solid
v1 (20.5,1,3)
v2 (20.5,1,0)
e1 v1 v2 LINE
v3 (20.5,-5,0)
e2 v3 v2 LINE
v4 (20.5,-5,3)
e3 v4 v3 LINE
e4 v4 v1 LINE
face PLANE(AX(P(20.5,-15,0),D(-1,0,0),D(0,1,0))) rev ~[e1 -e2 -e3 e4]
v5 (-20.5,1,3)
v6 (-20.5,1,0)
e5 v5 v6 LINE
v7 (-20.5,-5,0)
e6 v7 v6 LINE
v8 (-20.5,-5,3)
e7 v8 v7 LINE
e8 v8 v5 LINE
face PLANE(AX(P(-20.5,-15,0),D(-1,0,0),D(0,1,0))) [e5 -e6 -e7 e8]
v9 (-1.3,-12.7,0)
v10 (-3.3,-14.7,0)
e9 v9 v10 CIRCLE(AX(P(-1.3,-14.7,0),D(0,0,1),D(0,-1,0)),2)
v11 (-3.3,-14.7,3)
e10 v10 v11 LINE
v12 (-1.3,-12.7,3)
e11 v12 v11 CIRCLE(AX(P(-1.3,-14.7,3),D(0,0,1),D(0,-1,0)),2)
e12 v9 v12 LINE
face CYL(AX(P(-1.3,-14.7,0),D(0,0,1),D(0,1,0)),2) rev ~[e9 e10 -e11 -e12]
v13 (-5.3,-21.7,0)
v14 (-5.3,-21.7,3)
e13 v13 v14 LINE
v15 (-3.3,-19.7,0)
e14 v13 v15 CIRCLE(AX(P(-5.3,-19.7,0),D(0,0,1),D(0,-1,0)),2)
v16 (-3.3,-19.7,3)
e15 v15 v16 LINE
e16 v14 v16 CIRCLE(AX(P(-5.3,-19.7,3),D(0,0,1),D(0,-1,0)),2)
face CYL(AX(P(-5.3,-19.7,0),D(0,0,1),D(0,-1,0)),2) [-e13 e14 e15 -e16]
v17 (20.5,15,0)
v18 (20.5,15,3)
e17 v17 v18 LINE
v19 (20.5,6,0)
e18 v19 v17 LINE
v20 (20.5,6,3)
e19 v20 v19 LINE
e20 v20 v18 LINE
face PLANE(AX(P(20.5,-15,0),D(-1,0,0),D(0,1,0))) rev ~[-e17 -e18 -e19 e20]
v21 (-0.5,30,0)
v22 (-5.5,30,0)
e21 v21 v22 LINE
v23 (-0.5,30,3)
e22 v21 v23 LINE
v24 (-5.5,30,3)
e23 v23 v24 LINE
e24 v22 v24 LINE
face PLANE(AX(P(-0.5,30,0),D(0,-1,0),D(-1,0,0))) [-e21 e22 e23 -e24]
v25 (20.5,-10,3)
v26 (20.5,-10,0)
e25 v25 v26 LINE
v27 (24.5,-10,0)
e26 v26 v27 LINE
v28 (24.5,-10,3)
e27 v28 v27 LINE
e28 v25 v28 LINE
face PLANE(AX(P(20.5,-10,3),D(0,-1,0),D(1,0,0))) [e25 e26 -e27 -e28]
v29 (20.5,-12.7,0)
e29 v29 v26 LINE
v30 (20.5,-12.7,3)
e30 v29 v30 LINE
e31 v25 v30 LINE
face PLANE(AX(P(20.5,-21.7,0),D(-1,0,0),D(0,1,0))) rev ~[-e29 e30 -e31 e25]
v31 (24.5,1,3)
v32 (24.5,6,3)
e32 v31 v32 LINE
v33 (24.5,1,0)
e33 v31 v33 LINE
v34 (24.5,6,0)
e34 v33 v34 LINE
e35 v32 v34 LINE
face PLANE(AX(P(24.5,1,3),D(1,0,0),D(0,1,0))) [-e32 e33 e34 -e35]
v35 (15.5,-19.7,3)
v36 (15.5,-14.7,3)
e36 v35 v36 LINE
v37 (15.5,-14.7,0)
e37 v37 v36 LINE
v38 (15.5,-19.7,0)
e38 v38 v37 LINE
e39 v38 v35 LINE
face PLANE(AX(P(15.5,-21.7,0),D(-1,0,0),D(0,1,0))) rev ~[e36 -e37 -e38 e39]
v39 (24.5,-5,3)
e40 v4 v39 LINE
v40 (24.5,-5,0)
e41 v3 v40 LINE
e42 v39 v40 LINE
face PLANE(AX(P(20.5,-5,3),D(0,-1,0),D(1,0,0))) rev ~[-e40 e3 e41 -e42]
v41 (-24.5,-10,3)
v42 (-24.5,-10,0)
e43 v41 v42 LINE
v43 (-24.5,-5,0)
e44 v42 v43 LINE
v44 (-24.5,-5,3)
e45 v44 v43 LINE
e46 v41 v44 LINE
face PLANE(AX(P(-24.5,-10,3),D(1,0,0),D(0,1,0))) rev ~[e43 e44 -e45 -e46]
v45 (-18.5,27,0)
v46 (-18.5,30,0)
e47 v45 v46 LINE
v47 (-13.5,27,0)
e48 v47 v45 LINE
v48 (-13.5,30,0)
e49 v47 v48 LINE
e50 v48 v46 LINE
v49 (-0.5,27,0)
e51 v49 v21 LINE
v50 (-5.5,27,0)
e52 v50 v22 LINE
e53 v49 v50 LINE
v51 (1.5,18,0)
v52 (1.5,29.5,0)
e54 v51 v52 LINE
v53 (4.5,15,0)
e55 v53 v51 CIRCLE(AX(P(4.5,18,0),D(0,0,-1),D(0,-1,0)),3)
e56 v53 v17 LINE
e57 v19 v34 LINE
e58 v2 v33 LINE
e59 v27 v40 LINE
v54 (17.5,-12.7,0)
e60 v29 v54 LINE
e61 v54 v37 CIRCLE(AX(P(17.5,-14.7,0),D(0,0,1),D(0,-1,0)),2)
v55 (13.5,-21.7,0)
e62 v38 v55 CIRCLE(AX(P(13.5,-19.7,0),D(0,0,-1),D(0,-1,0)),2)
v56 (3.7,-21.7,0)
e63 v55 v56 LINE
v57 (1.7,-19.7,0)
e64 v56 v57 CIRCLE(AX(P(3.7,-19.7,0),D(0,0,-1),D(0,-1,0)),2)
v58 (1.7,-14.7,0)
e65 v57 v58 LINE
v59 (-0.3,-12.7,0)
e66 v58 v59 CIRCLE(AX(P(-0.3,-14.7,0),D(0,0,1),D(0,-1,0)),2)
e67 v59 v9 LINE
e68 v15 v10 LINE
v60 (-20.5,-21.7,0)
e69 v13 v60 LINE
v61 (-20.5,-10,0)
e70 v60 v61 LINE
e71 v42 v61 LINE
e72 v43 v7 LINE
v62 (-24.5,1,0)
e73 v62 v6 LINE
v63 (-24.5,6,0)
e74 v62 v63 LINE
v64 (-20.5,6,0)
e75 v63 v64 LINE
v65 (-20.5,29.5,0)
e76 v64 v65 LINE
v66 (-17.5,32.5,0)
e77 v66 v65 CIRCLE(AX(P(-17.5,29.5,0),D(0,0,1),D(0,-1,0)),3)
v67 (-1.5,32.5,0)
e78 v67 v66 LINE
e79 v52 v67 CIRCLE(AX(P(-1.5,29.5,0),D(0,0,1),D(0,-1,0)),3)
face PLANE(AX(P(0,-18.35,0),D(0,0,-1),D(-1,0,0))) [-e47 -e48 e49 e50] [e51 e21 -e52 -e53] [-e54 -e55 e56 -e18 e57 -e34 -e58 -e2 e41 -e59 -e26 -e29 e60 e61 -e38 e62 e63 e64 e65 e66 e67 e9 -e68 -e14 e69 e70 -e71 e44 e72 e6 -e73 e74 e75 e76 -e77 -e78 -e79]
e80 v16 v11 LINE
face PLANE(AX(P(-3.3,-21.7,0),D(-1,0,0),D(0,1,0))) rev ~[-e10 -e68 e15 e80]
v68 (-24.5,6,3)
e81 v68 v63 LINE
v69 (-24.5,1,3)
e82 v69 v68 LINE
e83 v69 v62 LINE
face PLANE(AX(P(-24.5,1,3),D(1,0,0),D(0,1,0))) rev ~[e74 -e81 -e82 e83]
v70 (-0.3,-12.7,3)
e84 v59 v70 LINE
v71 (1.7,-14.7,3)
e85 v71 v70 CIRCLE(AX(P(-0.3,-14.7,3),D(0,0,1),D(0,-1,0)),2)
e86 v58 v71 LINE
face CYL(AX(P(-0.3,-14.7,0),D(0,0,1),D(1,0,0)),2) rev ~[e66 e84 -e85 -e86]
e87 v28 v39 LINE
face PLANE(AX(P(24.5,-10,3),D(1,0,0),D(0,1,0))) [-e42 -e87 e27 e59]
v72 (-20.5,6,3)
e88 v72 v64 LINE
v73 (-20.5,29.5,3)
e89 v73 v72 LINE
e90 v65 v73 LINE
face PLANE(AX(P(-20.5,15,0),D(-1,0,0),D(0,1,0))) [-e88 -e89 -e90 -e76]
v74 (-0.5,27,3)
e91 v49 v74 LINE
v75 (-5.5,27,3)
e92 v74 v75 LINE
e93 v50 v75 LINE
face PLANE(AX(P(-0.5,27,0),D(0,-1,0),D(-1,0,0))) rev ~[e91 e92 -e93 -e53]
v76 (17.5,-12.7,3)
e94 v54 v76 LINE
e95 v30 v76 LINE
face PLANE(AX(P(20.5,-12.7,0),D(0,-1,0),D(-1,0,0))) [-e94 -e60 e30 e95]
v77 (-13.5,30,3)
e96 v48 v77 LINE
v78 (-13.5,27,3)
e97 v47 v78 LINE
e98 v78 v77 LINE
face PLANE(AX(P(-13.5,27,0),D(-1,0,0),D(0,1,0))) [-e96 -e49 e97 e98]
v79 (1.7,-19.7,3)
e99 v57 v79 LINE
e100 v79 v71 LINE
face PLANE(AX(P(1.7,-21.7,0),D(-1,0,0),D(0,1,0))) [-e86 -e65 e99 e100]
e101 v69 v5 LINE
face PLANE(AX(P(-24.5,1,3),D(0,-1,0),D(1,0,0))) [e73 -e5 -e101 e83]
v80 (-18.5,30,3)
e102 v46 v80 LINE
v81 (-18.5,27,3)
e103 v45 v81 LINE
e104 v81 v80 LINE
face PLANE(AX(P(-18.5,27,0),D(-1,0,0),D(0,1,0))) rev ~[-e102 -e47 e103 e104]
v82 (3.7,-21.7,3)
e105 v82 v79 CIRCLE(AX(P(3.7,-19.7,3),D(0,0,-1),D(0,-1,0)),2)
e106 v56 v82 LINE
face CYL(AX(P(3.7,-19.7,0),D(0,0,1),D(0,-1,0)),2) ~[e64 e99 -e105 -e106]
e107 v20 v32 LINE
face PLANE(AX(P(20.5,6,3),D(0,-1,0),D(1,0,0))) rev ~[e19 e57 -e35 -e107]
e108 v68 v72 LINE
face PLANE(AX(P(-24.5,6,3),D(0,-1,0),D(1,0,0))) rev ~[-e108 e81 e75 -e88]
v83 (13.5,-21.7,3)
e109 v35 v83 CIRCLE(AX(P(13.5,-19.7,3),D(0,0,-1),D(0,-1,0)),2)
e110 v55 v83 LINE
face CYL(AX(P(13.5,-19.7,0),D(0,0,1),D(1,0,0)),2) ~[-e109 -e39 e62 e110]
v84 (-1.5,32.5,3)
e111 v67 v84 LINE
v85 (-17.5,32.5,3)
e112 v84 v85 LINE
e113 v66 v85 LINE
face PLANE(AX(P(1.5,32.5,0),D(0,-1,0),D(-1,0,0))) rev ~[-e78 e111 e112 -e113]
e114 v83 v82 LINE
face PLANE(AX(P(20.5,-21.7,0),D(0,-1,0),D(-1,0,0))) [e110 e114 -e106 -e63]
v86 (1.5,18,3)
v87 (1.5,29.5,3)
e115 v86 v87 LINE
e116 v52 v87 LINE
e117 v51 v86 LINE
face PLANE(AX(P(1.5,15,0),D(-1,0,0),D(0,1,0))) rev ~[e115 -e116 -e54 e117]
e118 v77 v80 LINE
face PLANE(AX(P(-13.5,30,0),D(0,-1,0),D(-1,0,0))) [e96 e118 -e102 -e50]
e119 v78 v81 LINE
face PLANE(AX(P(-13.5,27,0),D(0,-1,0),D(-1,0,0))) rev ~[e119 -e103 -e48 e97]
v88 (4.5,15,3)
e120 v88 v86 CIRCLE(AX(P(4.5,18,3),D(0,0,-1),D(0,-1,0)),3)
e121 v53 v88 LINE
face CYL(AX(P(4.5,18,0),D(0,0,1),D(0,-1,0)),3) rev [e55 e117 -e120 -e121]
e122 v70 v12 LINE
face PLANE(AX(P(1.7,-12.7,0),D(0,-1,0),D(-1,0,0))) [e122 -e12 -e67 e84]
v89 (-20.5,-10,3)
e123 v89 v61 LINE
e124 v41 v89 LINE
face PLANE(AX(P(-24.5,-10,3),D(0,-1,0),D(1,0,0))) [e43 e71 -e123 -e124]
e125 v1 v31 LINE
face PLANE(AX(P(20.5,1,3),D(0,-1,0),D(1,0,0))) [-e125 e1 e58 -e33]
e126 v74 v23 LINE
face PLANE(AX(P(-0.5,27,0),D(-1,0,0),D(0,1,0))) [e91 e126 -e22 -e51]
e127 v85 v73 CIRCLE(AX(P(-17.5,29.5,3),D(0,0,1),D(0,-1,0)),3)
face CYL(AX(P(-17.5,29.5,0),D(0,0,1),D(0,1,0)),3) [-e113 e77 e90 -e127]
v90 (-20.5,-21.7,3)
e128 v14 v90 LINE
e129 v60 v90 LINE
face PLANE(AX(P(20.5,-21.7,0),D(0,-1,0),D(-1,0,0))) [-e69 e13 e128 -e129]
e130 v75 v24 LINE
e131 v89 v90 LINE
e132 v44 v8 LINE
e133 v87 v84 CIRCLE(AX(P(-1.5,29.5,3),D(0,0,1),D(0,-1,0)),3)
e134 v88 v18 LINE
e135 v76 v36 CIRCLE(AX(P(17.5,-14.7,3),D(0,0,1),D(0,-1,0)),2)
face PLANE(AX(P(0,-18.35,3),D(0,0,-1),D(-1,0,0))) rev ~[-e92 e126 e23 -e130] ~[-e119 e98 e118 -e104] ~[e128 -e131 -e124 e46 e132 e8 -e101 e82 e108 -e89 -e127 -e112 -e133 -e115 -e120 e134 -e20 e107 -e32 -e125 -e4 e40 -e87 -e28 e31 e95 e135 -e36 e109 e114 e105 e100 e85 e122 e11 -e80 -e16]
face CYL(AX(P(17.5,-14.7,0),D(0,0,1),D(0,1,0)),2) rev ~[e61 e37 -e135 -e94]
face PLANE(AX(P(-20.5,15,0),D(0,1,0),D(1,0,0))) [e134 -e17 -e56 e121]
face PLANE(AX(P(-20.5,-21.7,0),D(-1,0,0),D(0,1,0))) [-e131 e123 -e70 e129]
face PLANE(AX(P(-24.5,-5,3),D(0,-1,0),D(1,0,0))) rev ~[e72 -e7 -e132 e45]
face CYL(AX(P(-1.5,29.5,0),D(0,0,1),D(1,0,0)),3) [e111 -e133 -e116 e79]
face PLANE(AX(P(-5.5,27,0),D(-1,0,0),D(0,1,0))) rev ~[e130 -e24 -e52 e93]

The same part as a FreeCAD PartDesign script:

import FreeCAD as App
import Part
import Sketcher

V = App.Vector
Q = App.Units.Quantity


def edges_at(feature, points):
    """Names of the edges that pass closest to the given points."""
    edges = feature.Shape.Edges
    near = lambda p: min(range(len(edges)), key=lambda i: edges[i].distToShape(Part.Vertex(*p))[0])
    return sorted({f"Edge{near(p) + 1}" for p in points})

doc = App.newDocument("Part")
params = doc.addObject("Spreadsheet::Sheet", "Params")
for row, (alias, value) in enumerate([
    ("sketch1_width", "41 mm"),
    ("sketch1_height", "30 mm"),
    ("pad1_length", "3 mm"),
    ("sketch2_width", "4 mm"),
    ("sketch2_height", "5 mm"),
    ("pad2_length", "3 mm"),
    ("sketch3_width", "22 mm"),
    ("sketch3_height", "17.5 mm"),
    ("pad3_length", "3 mm"),
    ("sketch4_width", "5 mm"),
    ("sketch4_height", "3 mm"),
    ("pocket1_length", "10 mm"),
    ("sketch5_width", "41 mm"),
    ("sketch5_height", "6.7 mm"),
    ("pad4_length", "3 mm"),
    ("sketch6_width", "5 mm"),
    ("sketch6_height", "9 mm"),
    ("pocket2_length", "10 mm"),
    ("fillet_radius", "3 mm"),
    ("fillet2_radius", "2 mm"),
], start=1):
    params.set(f"A{row}", alias)
    params.set(f"B{row}", "=" + value)
    params.setAlias(f"B{row}", alias)

body = doc.addObject("PartDesign::Body", "Body")

sketch1 = doc.addObject("Sketcher::SketchObject", "Sketch")
body.addObject(sketch1)
sketch1.AttachmentSupport = (doc.XY_Plane, [""])
sketch1.MapMode = "FlatFace"
sketch1.addGeometry([
    Part.LineSegment(V(-20, 15, 0), V(-20, -15, 0)),
    Part.LineSegment(V(-20, -15, 0), V(20, -15, 0)),
    Part.LineSegment(V(20, -15, 0), V(20, 15, 0)),
    Part.LineSegment(V(20, 15, 0), V(-20, 15, 0)),
], False)
sketch1.addConstraint([
    Sketcher.Constraint("Coincident", 0, 2, 1, 1),
    Sketcher.Constraint("Coincident", 1, 2, 2, 1),
    Sketcher.Constraint("Coincident", 2, 2, 3, 1),
    Sketcher.Constraint("Coincident", 3, 2, 0, 1),
    Sketcher.Constraint("Vertical", 0),
    Sketcher.Constraint("Horizontal", 1),
    Sketcher.Constraint("Vertical", 2),
    Sketcher.Constraint("Horizontal", 3),
    Sketcher.Constraint("Symmetric", 0, 2, 2, 2, -1, 1),
    Sketcher.Constraint("DistanceX", 1, 1, 1, 2, Q("41 mm")),
    Sketcher.Constraint("DistanceY", 0, 2, 0, 1, Q("30 mm")),
])
sketch1.setExpression("Constraints[9]", "Params.sketch1_width")
sketch1.setExpression("Constraints[10]", "Params.sketch1_height")
pad1 = doc.addObject("PartDesign::Pad", "Pad")
body.addObject(pad1)
pad1.Profile = sketch1
pad1.setExpression("Length", "Params.pad1_length")

sketch2 = doc.addObject("Sketcher::SketchObject", "Sketch001")
body.addObject(sketch2)
sketch2.AttachmentSupport = (doc.XY_Plane, [""])
sketch2.MapMode = "FlatFace"
sketch2.AttachmentOffset = App.Placement(V(0, 0, 3), App.Rotation())
sketch2.addGeometry([
    Part.LineSegment(V(20.5, -5, 0), V(20.5, -10, 0)),
    Part.LineSegment(V(20.5, -10, 0), V(24.5, -10, 0)),
    Part.LineSegment(V(24.5, -10, 0), V(24.5, -5, 0)),
    Part.LineSegment(V(24.5, -5, 0), V(20.5, -5, 0)),
    Part.LineSegment(V(20.5, 6, 0), V(20.5, 1, 0)),
    Part.LineSegment(V(20.5, 1, 0), V(24.5, 1, 0)),
    Part.LineSegment(V(24.5, 1, 0), V(24.5, 6, 0)),
    Part.LineSegment(V(24.5, 6, 0), V(20.5, 6, 0)),
    Part.LineSegment(V(-24.5, -5, 0), V(-24.5, -10, 0)),
    Part.LineSegment(V(-24.5, -10, 0), V(-20.5, -10, 0)),
    Part.LineSegment(V(-20.5, -10, 0), V(-20.5, -5, 0)),
    Part.LineSegment(V(-20.5, -5, 0), V(-24.5, -5, 0)),
    Part.LineSegment(V(-24.5, 6, 0), V(-24.5, 1, 0)),
    Part.LineSegment(V(-24.5, 1, 0), V(-20.5, 1, 0)),
    Part.LineSegment(V(-20.5, 1, 0), V(-20.5, 6, 0)),
    Part.LineSegment(V(-20.5, 6, 0), V(-24.5, 6, 0)),
], False)
sketch2.addConstraint([
    Sketcher.Constraint("Coincident", 0, 2, 1, 1),
    Sketcher.Constraint("Coincident", 1, 2, 2, 1),
    Sketcher.Constraint("Coincident", 2, 2, 3, 1),
    Sketcher.Constraint("Coincident", 3, 2, 0, 1),
    Sketcher.Constraint("Coincident", 4, 2, 5, 1),
    Sketcher.Constraint("Coincident", 5, 2, 6, 1),
    Sketcher.Constraint("Coincident", 6, 2, 7, 1),
    Sketcher.Constraint("Coincident", 7, 2, 4, 1),
    Sketcher.Constraint("Coincident", 8, 2, 9, 1),
    Sketcher.Constraint("Coincident", 9, 2, 10, 1),
    Sketcher.Constraint("Coincident", 10, 2, 11, 1),
    Sketcher.Constraint("Coincident", 11, 2, 8, 1),
    Sketcher.Constraint("Coincident", 12, 2, 13, 1),
    Sketcher.Constraint("Coincident", 13, 2, 14, 1),
    Sketcher.Constraint("Coincident", 14, 2, 15, 1),
    Sketcher.Constraint("Coincident", 15, 2, 12, 1),
    Sketcher.Constraint("Vertical", 0),
    Sketcher.Constraint("Horizontal", 1),
    Sketcher.Constraint("Vertical", 2),
    Sketcher.Constraint("Horizontal", 3),
    Sketcher.Constraint("Vertical", 4),
    Sketcher.Constraint("Horizontal", 5),
    Sketcher.Constraint("Vertical", 6),
    Sketcher.Constraint("Horizontal", 7),
    Sketcher.Constraint("Vertical", 8),
    Sketcher.Constraint("Horizontal", 9),
    Sketcher.Constraint("Vertical", 10),
    Sketcher.Constraint("Horizontal", 11),
    Sketcher.Constraint("Vertical", 12),
    Sketcher.Constraint("Horizontal", 13),
    Sketcher.Constraint("Vertical", 14),
    Sketcher.Constraint("Horizontal", 15),
    Sketcher.Constraint("Symmetric", 1, 2, 8, 2, -2),
    Sketcher.Constraint("Symmetric", 3, 2, 10, 2, -2),
    Sketcher.Constraint("Symmetric", 5, 2, 12, 2, -2),
    Sketcher.Constraint("Symmetric", 7, 2, 14, 2, -2),
    Sketcher.Constraint("Vertical", 3, 2, 4, 2),
    Sketcher.Constraint("Vertical", 2, 2, 5, 2),
    Sketcher.Constraint("Equal", 2, 4),
    Sketcher.Constraint("DistanceX", 1, 1, 1, 2, Q("4 mm")),
    Sketcher.Constraint("DistanceY", 0, 2, 0, 1, Q("5 mm")),
    Sketcher.Constraint("DistanceY", 0, 2, -1, 1, Q("10 mm")),
    Sketcher.Constraint("DistanceY", -1, 1, 4, 2, Q("1 mm")),
    Sketcher.Constraint("DistanceX", 8, 2, 0, 2, Q("45 mm")),
])
sketch2.setExpression("Constraints[39]", "Params.sketch2_width")
sketch2.setExpression("Constraints[40]", "Params.sketch2_height")
pad2 = doc.addObject("PartDesign::Pad", "Pad001")
body.addObject(pad2)
pad2.Profile = sketch2
pad2.setExpression("Length", "Params.pad2_length")
pad2.Reversed = True

sketch3 = doc.addObject("Sketcher::SketchObject", "Sketch002")
body.addObject(sketch3)
sketch3.AttachmentSupport = (doc.XY_Plane, [""])
sketch3.MapMode = "FlatFace"
sketch3.addGeometry([
    Part.LineSegment(V(2, 32, 0), V(2, 15, 0)),
    Part.LineSegment(V(2, 15, 0), V(-20, 15, 0)),
    Part.LineSegment(V(-20, 15, 0), V(-20, 32, 0)),
    Part.LineSegment(V(-20, 32, 0), V(2, 32, 0)),
], False)
sketch3.addConstraint([
    Sketcher.Constraint("Coincident", 0, 2, 1, 1),
    Sketcher.Constraint("Coincident", 1, 2, 2, 1),
    Sketcher.Constraint("Coincident", 2, 2, 3, 1),
    Sketcher.Constraint("Coincident", 3, 2, 0, 1),
    Sketcher.Constraint("Vertical", 0),
    Sketcher.Constraint("Horizontal", 1),
    Sketcher.Constraint("Vertical", 2),
    Sketcher.Constraint("Horizontal", 3),
    Sketcher.Constraint("DistanceX", 1, 2, 1, 1, Q("22 mm")),
    Sketcher.Constraint("DistanceY", 0, 2, 0, 1, Q("17.5 mm")),
    Sketcher.Constraint("DistanceY", -1, 1, 0, 2, Q("15 mm")),
    Sketcher.Constraint("DistanceX", -1, 1, 0, 2, Q("1.5 mm")),
])
sketch3.setExpression("Constraints[8]", "Params.sketch3_width")
sketch3.setExpression("Constraints[9]", "Params.sketch3_height")
pad3 = doc.addObject("PartDesign::Pad", "Pad002")
body.addObject(pad3)
pad3.Profile = sketch3
pad3.setExpression("Length", "Params.pad3_length")

sketch4 = doc.addObject("Sketcher::SketchObject", "Sketch003")
body.addObject(sketch4)
sketch4.AttachmentSupport = (doc.XY_Plane, [""])
sketch4.MapMode = "FlatFace"
sketch4.addGeometry([
    Part.LineSegment(V(-0.5, 30, 0), V(-0.5, 27, 0)),
    Part.LineSegment(V(-0.5, 27, 0), V(-5.5, 27, 0)),
    Part.LineSegment(V(-5.5, 27, 0), V(-5.5, 30, 0)),
    Part.LineSegment(V(-5.5, 30, 0), V(-0.5, 30, 0)),
    Part.LineSegment(V(-13.5, 30, 0), V(-13.5, 27, 0)),
    Part.LineSegment(V(-13.5, 27, 0), V(-18.5, 27, 0)),
    Part.LineSegment(V(-18.5, 27, 0), V(-18.5, 30, 0)),
    Part.LineSegment(V(-18.5, 30, 0), V(-13.5, 30, 0)),
], False)
sketch4.addConstraint([
    Sketcher.Constraint("Coincident", 0, 2, 1, 1),
    Sketcher.Constraint("Coincident", 1, 2, 2, 1),
    Sketcher.Constraint("Coincident", 2, 2, 3, 1),
    Sketcher.Constraint("Coincident", 3, 2, 0, 1),
    Sketcher.Constraint("Coincident", 4, 2, 5, 1),
    Sketcher.Constraint("Coincident", 5, 2, 6, 1),
    Sketcher.Constraint("Coincident", 6, 2, 7, 1),
    Sketcher.Constraint("Coincident", 7, 2, 4, 1),
    Sketcher.Constraint("Vertical", 0),
    Sketcher.Constraint("Horizontal", 1),
    Sketcher.Constraint("Vertical", 2),
    Sketcher.Constraint("Horizontal", 3),
    Sketcher.Constraint("Vertical", 4),
    Sketcher.Constraint("Horizontal", 5),
    Sketcher.Constraint("Vertical", 6),
    Sketcher.Constraint("Horizontal", 7),
    Sketcher.Constraint("Horizontal", 1, 2, 4, 2),
    Sketcher.Constraint("Horizontal", 3, 2, 6, 2),
    Sketcher.Constraint("Equal", 3, 5),
    Sketcher.Constraint("DistanceX", 1, 2, 1, 1, Q("5 mm")),
    Sketcher.Constraint("DistanceY", 0, 2, 0, 1, Q("3 mm")),
    Sketcher.Constraint("DistanceY", -1, 1, 0, 2, Q("27 mm")),
    Sketcher.Constraint("DistanceX", 4, 2, 1, 2, Q("8 mm")),
    Sketcher.Constraint("DistanceX", 0, 2, -1, 1, Q("0.5 mm")),
])
sketch4.setExpression("Constraints[19]", "Params.sketch4_width")
sketch4.setExpression("Constraints[20]", "Params.sketch4_height")
pocket1 = doc.addObject("PartDesign::Pocket", "Pocket")
body.addObject(pocket1)
pocket1.Profile = sketch4
pocket1.setExpression("Length", "Params.pocket1_length")
pocket1.Reversed = True

sketch5 = doc.addObject("Sketcher::SketchObject", "Sketch004")
body.addObject(sketch5)
sketch5.AttachmentSupport = (doc.XY_Plane, [""])
sketch5.MapMode = "FlatFace"
sketch5.addGeometry([
    Part.LineSegment(V(20, -15, 0), V(20, -22, 0)),
    Part.LineSegment(V(20, -22, 0), V(-20, -22, 0)),
    Part.LineSegment(V(-20, -22, 0), V(-20, -15, 0)),
    Part.LineSegment(V(-20, -15, 0), V(20, -15, 0)),
], False)
sketch5.addConstraint([
    Sketcher.Constraint("Coincident", 0, 2, 1, 1),
    Sketcher.Constraint("Coincident", 1, 2, 2, 1),
    Sketcher.Constraint("Coincident", 2, 2, 3, 1),
    Sketcher.Constraint("Coincident", 3, 2, 0, 1),
    Sketcher.Constraint("Vertical", 0),
    Sketcher.Constraint("Horizontal", 1),
    Sketcher.Constraint("Vertical", 2),
    Sketcher.Constraint("Horizontal", 3),
    Sketcher.Constraint("DistanceX", 1, 2, 1, 1, Q("41 mm")),
    Sketcher.Constraint("DistanceY", 0, 2, 0, 1, Q("6.7 mm")),
    Sketcher.Constraint("DistanceY", 2, 2, -1, 1, Q("15 mm")),
    Sketcher.Constraint("DistanceX", -1, 1, 0, 2, Q("20.5 mm")),
])
sketch5.setExpression("Constraints[8]", "Params.sketch5_width")
sketch5.setExpression("Constraints[9]", "Params.sketch5_height")
pad4 = doc.addObject("PartDesign::Pad", "Pad003")
body.addObject(pad4)
pad4.Profile = sketch5
pad4.setExpression("Length", "Params.pad4_length")

sketch6 = doc.addObject("Sketcher::SketchObject", "Sketch005")
body.addObject(sketch6)
sketch6.AttachmentSupport = (doc.XY_Plane, [""])
sketch6.MapMode = "FlatFace"
sketch6.addGeometry([
    Part.LineSegment(V(2, -13, 0), V(2, -22, 0)),
    Part.LineSegment(V(2, -22, 0), V(-3, -22, 0)),
    Part.LineSegment(V(-3, -22, 0), V(-3, -13, 0)),
    Part.LineSegment(V(-3, -13, 0), V(2, -13, 0)),
    Part.LineSegment(V(20, -13, 0), V(20, -22, 0)),
    Part.LineSegment(V(20, -22, 0), V(16, -22, 0)),
    Part.LineSegment(V(16, -22, 0), V(16, -13, 0)),
    Part.LineSegment(V(16, -13, 0), V(20, -13, 0)),
], False)
sketch6.addConstraint([
    Sketcher.Constraint("Coincident", 0, 2, 1, 1),
    Sketcher.Constraint("Coincident", 1, 2, 2, 1),
    Sketcher.Constraint("Coincident", 2, 2, 3, 1),
    Sketcher.Constraint("Coincident", 3, 2, 0, 1),
    Sketcher.Constraint("Coincident", 4, 2, 5, 1),
    Sketcher.Constraint("Coincident", 5, 2, 6, 1),
    Sketcher.Constraint("Coincident", 6, 2, 7, 1),
    Sketcher.Constraint("Coincident", 7, 2, 4, 1),
    Sketcher.Constraint("Vertical", 0),
    Sketcher.Constraint("Horizontal", 1),
    Sketcher.Constraint("Vertical", 2),
    Sketcher.Constraint("Horizontal", 3),
    Sketcher.Constraint("Vertical", 4),
    Sketcher.Constraint("Horizontal", 5),
    Sketcher.Constraint("Vertical", 6),
    Sketcher.Constraint("Horizontal", 7),
    Sketcher.Constraint("Horizontal", 1, 2, 4, 2),
    Sketcher.Constraint("Horizontal", 3, 2, 6, 2),
    Sketcher.Constraint("Equal", 3, 5),
    Sketcher.Constraint("DistanceX", 1, 2, 1, 1, Q("5 mm")),
    Sketcher.Constraint("DistanceY", 0, 2, 0, 1, Q("9 mm")),
    Sketcher.Constraint("DistanceX", -1, 1, 0, 2, Q("1.7 mm")),
    Sketcher.Constraint("DistanceY", 0, 2, -1, 1, Q("21.7 mm")),
    Sketcher.Constraint("DistanceX", -1, 1, 4, 2, Q("20.5 mm")),
])
sketch6.setExpression("Constraints[19]", "Params.sketch6_width")
sketch6.setExpression("Constraints[20]", "Params.sketch6_height")
pocket2 = doc.addObject("PartDesign::Pocket", "Pocket001")
body.addObject(pocket2)
pocket2.Profile = sketch6
pocket2.setExpression("Length", "Params.pocket2_length")
pocket2.Reversed = True
doc.recompute()

fillet = doc.addObject("PartDesign::Fillet", "Fillet")
body.addObject(fillet)
fillet.Base = (pocket2, edges_at(pocket2, [(-20.5, 32.5, 1.5), (1.5, 15, 1.5), (1.5, 32.5, 1.5)]))
fillet.setExpression("Radius", "Params.fillet_radius")
doc.recompute()

fillet2 = doc.addObject("PartDesign::Fillet", "Fillet001")
body.addObject(fillet2)
fillet2.Base = (fillet, edges_at(fillet, [
    (1.7, -21.7, 1.5),
    (-3.3, -21.7, 1.5),
    (15.5, -21.7, 1.5),
    (15.5, -12.7, 1.5),
    (1.7, -12.7, 1.5),
    (-3.3, -12.7, 1.5),
]))
fillet2.setExpression("Radius", "Params.fillet2_radius")

doc.recompute()
